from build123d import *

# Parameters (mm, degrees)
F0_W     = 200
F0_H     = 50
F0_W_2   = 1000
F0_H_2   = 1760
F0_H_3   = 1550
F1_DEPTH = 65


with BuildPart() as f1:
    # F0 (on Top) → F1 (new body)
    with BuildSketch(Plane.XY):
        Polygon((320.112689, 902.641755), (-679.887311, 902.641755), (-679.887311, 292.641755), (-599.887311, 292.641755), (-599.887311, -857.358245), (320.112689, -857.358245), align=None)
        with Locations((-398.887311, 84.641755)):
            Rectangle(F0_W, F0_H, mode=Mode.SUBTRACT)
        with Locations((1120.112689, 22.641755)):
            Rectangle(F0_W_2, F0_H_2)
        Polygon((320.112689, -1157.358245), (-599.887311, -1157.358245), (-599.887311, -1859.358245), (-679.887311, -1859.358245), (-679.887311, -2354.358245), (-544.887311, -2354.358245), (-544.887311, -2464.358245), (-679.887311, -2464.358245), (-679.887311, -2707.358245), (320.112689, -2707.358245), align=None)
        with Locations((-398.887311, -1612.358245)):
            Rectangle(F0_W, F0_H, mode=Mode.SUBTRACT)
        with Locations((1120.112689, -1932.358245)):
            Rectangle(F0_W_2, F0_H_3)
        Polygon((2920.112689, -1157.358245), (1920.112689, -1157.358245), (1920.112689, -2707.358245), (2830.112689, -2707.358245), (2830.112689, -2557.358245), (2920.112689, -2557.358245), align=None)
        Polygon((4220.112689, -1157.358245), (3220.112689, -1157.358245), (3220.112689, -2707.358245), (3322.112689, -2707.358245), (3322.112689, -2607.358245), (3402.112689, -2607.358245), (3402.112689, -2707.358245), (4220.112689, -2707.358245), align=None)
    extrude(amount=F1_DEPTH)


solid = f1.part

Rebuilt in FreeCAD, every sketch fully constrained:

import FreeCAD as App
import Part
import Sketcher

V = App.Vector

doc = App.newDocument("Part")
body = doc.addObject("PartDesign::Body", "Body")
body.AllowCompound = True

# Sketch on XY plane
sketch1 = body.newObject("Sketcher::SketchObject", "Sketch")
sketch1.AttachmentSupport = (doc.getObject("XY_Plane"), [""])
sketch1.MapMode = "FlatFace"
sketch1.addGeometry(Part.LineSegment(V(320.112689, 902.641755, 0), V(-679.887311, 902.641755, 0)), False)
sketch1.addGeometry(Part.LineSegment(V(-679.887311, 902.641755, 0), V(-679.887311, 292.641755, 0)), False)
sketch1.addGeometry(Part.LineSegment(V(-679.887311, 292.641755, 0), V(-599.887311, 292.641755, 0)), False)
sketch1.addGeometry(Part.LineSegment(V(-599.887311, 292.641755, 0), V(-599.887311, -857.358245, 0)), False)
sketch1.addGeometry(Part.LineSegment(V(-599.887311, -857.358245, 0), V(320.112689, -857.358245, 0)), False)
sketch1.addGeometry(Part.LineSegment(V(320.112689, -857.358245, 0), V(320.112689, 902.641755, 0)), False)
sketch1.addGeometry(Part.LineSegment(V(-298.887311, 59.641755, 0), V(-498.887311, 59.641755, 0)), False)
sketch1.addGeometry(Part.LineSegment(V(-498.887311, 59.641755, 0), V(-498.887311, 109.641755, 0)), False)
sketch1.addGeometry(Part.LineSegment(V(-498.887311, 109.641755, 0), V(-298.887311, 109.641755, 0)), False)
sketch1.addGeometry(Part.LineSegment(V(-298.887311, 109.641755, 0), V(-298.887311, 59.641755, 0)), False)
sketch1.addGeometry(Part.LineSegment(V(620.112689, 902.641755, 0), V(620.112689, -857.358245, 0)), False)
sketch1.addGeometry(Part.LineSegment(V(620.112689, -857.358245, 0), V(1620.112689, -857.358245, 0)), False)
sketch1.addGeometry(Part.LineSegment(V(1620.112689, -857.358245, 0), V(1620.112689, 902.641755, 0)), False)
sketch1.addGeometry(Part.LineSegment(V(1620.112689, 902.641755, 0), V(620.112689, 902.641755, 0)), False)
sketch1.addGeometry(Part.LineSegment(V(320.112689, -1157.358245, 0), V(-599.887311, -1157.358245, 0)), False)
sketch1.addGeometry(Part.LineSegment(V(-599.887311, -1157.358245, 0), V(-599.887311, -1859.358245, 0)), False)
sketch1.addGeometry(Part.LineSegment(V(-599.887311, -1859.358245, 0), V(-679.887311, -1859.358245, 0)), False)
sketch1.addGeometry(Part.LineSegment(V(-679.887311, -1859.358245, 0), V(-679.887311, -2354.358245, 0)), False)
sketch1.addGeometry(Part.LineSegment(V(-679.887311, -2354.358245, 0), V(-544.887311, -2354.358245, 0)), False)
sketch1.addGeometry(Part.LineSegment(V(-544.887311, -2354.358245, 0), V(-544.887311, -2464.358245, 0)), False)
sketch1.addGeometry(Part.LineSegment(V(-544.887311, -2464.358245, 0), V(-679.887311, -2464.358245, 0)), False)
sketch1.addGeometry(Part.LineSegment(V(-679.887311, -2464.358245, 0), V(-679.887311, -2707.358245, 0)), False)
sketch1.addGeometry(Part.LineSegment(V(-679.887311, -2707.358245, 0), V(320.112689, -2707.358245, 0)), False)
sketch1.addGeometry(Part.LineSegment(V(320.112689, -2707.358245, 0), V(320.112689, -1157.358245, 0)), False)
sketch1.addGeometry(Part.LineSegment(V(-298.887311, -1637.358245, 0), V(-498.887311, -1637.358245, 0)), False)
sketch1.addGeometry(Part.LineSegment(V(-498.887311, -1637.358245, 0), V(-498.887311, -1587.358245, 0)), False)
sketch1.addGeometry(Part.LineSegment(V(-498.887311, -1587.358245, 0), V(-298.887311, -1587.358245, 0)), False)
sketch1.addGeometry(Part.LineSegment(V(-298.887311, -1587.358245, 0), V(-298.887311, -1637.358245, 0)), False)
sketch1.addGeometry(Part.LineSegment(V(620.112689, -1157.358245, 0), V(620.112689, -2707.358245, 0)), False)
sketch1.addGeometry(Part.LineSegment(V(620.112689, -2707.358245, 0), V(1620.112689, -2707.358245, 0)), False)
sketch1.addGeometry(Part.LineSegment(V(1620.112689, -2707.358245, 0), V(1620.112689, -1157.358245, 0)), False)
sketch1.addGeometry(Part.LineSegment(V(1620.112689, -1157.358245, 0), V(620.112689, -1157.358245, 0)), False)
sketch1.addGeometry(Part.LineSegment(V(2920.112689, -1157.358245, 0), V(1920.112689, -1157.358245, 0)), False)
sketch1.addGeometry(Part.LineSegment(V(1920.112689, -1157.358245, 0), V(1920.112689, -2707.358245, 0)), False)
sketch1.addGeometry(Part.LineSegment(V(1920.112689, -2707.358245, 0), V(2830.112689, -2707.358245, 0)), False)
sketch1.addGeometry(Part.LineSegment(V(2830.112689, -2707.358245, 0), V(2830.112689, -2557.358245, 0)), False)
sketch1.addGeometry(Part.LineSegment(V(2830.112689, -2557.358245, 0), V(2920.112689, -2557.358245, 0)), False)
sketch1.addGeometry(Part.LineSegment(V(2920.112689, -2557.358245, 0), V(2920.112689, -1157.358245, 0)), False)
sketch1.addGeometry(Part.LineSegment(V(4220.112689, -1157.358245, 0), V(3220.112689, -1157.358245, 0)), False)
sketch1.addGeometry(Part.LineSegment(V(3220.112689, -1157.358245, 0), V(3220.112689, -2707.358245, 0)), False)
sketch1.addGeometry(Part.LineSegment(V(3220.112689, -2707.358245, 0), V(3322.112689, -2707.358245, 0)), False)
sketch1.addGeometry(Part.LineSegment(V(3322.112689, -2707.358245, 0), V(3322.112689, -2607.358245, 0)), False)
sketch1.addGeometry(Part.LineSegment(V(3322.112689, -2607.358245, 0), V(3402.112689, -2607.358245, 0)), False)
sketch1.addGeometry(Part.LineSegment(V(3402.112689, -2607.358245, 0), V(3402.112689, -2707.358245, 0)), False)
sketch1.addGeometry(Part.LineSegment(V(3402.112689, -2707.358245, 0), V(4220.112689, -2707.358245, 0)), False)
sketch1.addGeometry(Part.LineSegment(V(4220.112689, -2707.358245, 0), V(4220.112689, -1157.358245, 0)), False)
sketch1.addConstraint(Sketcher.Constraint("Coincident", 0, 2, 1, 1))
sketch1.addConstraint(Sketcher.Constraint("Coincident", 1, 2, 2, 1))
sketch1.addConstraint(Sketcher.Constraint("Coincident", 2, 2, 3, 1))
sketch1.addConstraint(Sketcher.Constraint("Coincident", 3, 2, 4, 1))
sketch1.addConstraint(Sketcher.Constraint("Coincident", 4, 2, 5, 1))
sketch1.addConstraint(Sketcher.Constraint("Coincident", 5, 2, 0, 1))
sketch1.addConstraint(Sketcher.Constraint("Coincident", 6, 2, 7, 1))
sketch1.addConstraint(Sketcher.Constraint("Coincident", 7, 2, 8, 1))
sketch1.addConstraint(Sketcher.Constraint("Coincident", 8, 2, 9, 1))
sketch1.addConstraint(Sketcher.Constraint("Coincident", 9, 2, 6, 1))
sketch1.addConstraint(Sketcher.Constraint("Coincident", 10, 2, 11, 1))
sketch1.addConstraint(Sketcher.Constraint("Coincident", 11, 2, 12, 1))
sketch1.addConstraint(Sketcher.Constraint("Coincident", 12, 2, 13, 1))
sketch1.addConstraint(Sketcher.Constraint("Coincident", 13, 2, 10, 1))
sketch1.addConstraint(Sketcher.Constraint("Coincident", 14, 2, 15, 1))
sketch1.addConstraint(Sketcher.Constraint("Coincident", 15, 2, 16, 1))
sketch1.addConstraint(Sketcher.Constraint("Coincident", 16, 2, 17, 1))
sketch1.addConstraint(Sketcher.Constraint("Coincident", 17, 2, 18, 1))
sketch1.addConstraint(Sketcher.Constraint("Coincident", 18, 2, 19, 1))
sketch1.addConstraint(Sketcher.Constraint("Coincident", 19, 2, 20, 1))
sketch1.addConstraint(Sketcher.Constraint("Coincident", 20, 2, 21, 1))
sketch1.addConstraint(Sketcher.Constraint("Coincident", 21, 2, 22, 1))
sketch1.addConstraint(Sketcher.Constraint("Coincident", 22, 2, 23, 1))
sketch1.addConstraint(Sketcher.Constraint("Coincident", 23, 2, 14, 1))
sketch1.addConstraint(Sketcher.Constraint("Coincident", 24, 2, 25, 1))
sketch1.addConstraint(Sketcher.Constraint("Coincident", 25, 2, 26, 1))
sketch1.addConstraint(Sketcher.Constraint("Coincident", 26, 2, 27, 1))
sketch1.addConstraint(Sketcher.Constraint("Coincident", 27, 2, 24, 1))
sketch1.addConstraint(Sketcher.Constraint("Coincident", 28, 2, 29, 1))
sketch1.addConstraint(Sketcher.Constraint("Coincident", 29, 2, 30, 1))
sketch1.addConstraint(Sketcher.Constraint("Coincident", 30, 2, 31, 1))
sketch1.addConstraint(Sketcher.Constraint("Coincident", 31, 2, 28, 1))
sketch1.addConstraint(Sketcher.Constraint("Coincident", 32, 2, 33, 1))
sketch1.addConstraint(Sketcher.Constraint("Coincident", 33, 2, 34, 1))
sketch1.addConstraint(Sketcher.Constraint("Coincident", 34, 2, 35, 1))
sketch1.addConstraint(Sketcher.Constraint("Coincident", 35, 2, 36, 1))
sketch1.addConstraint(Sketcher.Constraint("Coincident", 36, 2, 37, 1))
sketch1.addConstraint(Sketcher.Constraint("Coincident", 37, 2, 32, 1))
sketch1.addConstraint(Sketcher.Constraint("Coincident", 38, 2, 39, 1))
sketch1.addConstraint(Sketcher.Constraint("Coincident", 39, 2, 40, 1))
sketch1.addConstraint(Sketcher.Constraint("Coincident", 40, 2, 41, 1))
sketch1.addConstraint(Sketcher.Constraint("Coincident", 41, 2, 42, 1))
sketch1.addConstraint(Sketcher.Constraint("Coincident", 42, 2, 43, 1))
sketch1.addConstraint(Sketcher.Constraint("Coincident", 43, 2, 44, 1))
sketch1.addConstraint(Sketcher.Constraint("Coincident", 44, 2, 45, 1))
sketch1.addConstraint(Sketcher.Constraint("Coincident", 45, 2, 38, 1))
sketch1.addConstraint(Sketcher.Constraint("Horizontal", 0))
sketch1.addConstraint(Sketcher.Constraint("Vertical", 1))
sketch1.addConstraint(Sketcher.Constraint("Horizontal", 2))
sketch1.addConstraint(Sketcher.Constraint("Vertical", 3))
sketch1.addConstraint(Sketcher.Constraint("Horizontal", 4))
sketch1.addConstraint(Sketcher.Constraint("Vertical", 5))
sketch1.addConstraint(Sketcher.Constraint("Horizontal", 6))
sketch1.addConstraint(Sketcher.Constraint("Vertical", 7))
sketch1.addConstraint(Sketcher.Constraint("Horizontal", 8))
sketch1.addConstraint(Sketcher.Constraint("Vertical", 9))
sketch1.addConstraint(Sketcher.Constraint("Vertical", 10))
sketch1.addConstraint(Sketcher.Constraint("Horizontal", 11))
sketch1.addConstraint(Sketcher.Constraint("Vertical", 12))
sketch1.addConstraint(Sketcher.Constraint("Horizontal", 13))
sketch1.addConstraint(Sketcher.Constraint("Horizontal", 14))
sketch1.addConstraint(Sketcher.Constraint("Vertical", 15))
sketch1.addConstraint(Sketcher.Constraint("Horizontal", 16))
sketch1.addConstraint(Sketcher.Constraint("Vertical", 17))
sketch1.addConstraint(Sketcher.Constraint("Horizontal", 18))
sketch1.addConstraint(Sketcher.Constraint("Vertical", 19))
sketch1.addConstraint(Sketcher.Constraint("Horizontal", 20))
sketch1.addConstraint(Sketcher.Constraint("Vertical", 21))
sketch1.addConstraint(Sketcher.Constraint("Horizontal", 22))
sketch1.addConstraint(Sketcher.Constraint("Vertical", 23))
sketch1.addConstraint(Sketcher.Constraint("Horizontal", 24))
sketch1.addConstraint(Sketcher.Constraint("Vertical", 25))
sketch1.addConstraint(Sketcher.Constraint("Horizontal", 26))
sketch1.addConstraint(Sketcher.Constraint("Vertical", 27))
sketch1.addConstraint(Sketcher.Constraint("Vertical", 28))
sketch1.addConstraint(Sketcher.Constraint("Horizontal", 29))
sketch1.addConstraint(Sketcher.Constraint("Vertical", 30))
sketch1.addConstraint(Sketcher.Constraint("Horizontal", 31))
sketch1.addConstraint(Sketcher.Constraint("Horizontal", 32))
sketch1.addConstraint(Sketcher.Constraint("Vertical", 33))
sketch1.addConstraint(Sketcher.Constraint("Horizontal", 34))
sketch1.addConstraint(Sketcher.Constraint("Vertical", 35))
sketch1.addConstraint(Sketcher.Constraint("Horizontal", 36))
sketch1.addConstraint(Sketcher.Constraint("Vertical", 37))
sketch1.addConstraint(Sketcher.Constraint("Horizontal", 38))
sketch1.addConstraint(Sketcher.Constraint("Vertical", 39))
sketch1.addConstraint(Sketcher.Constraint("Horizontal", 40))
sketch1.addConstraint(Sketcher.Constraint("Vertical", 41))
sketch1.addConstraint(Sketcher.Constraint("Horizontal", 42))
sketch1.addConstraint(Sketcher.Constraint("Vertical", 43))
sketch1.addConstraint(Sketcher.Constraint("Horizontal", 44))
sketch1.addConstraint(Sketcher.Constraint("Vertical", 45))
sketch1.addConstraint(Sketcher.Constraint("Horizontal", 4, 2, 10, 2))
sketch1.addConstraint(Sketcher.Constraint("Horizontal", 5, 2, 12, 2))
sketch1.addConstraint(Sketcher.Constraint("Horizontal", 22, 2, 28, 2))
sketch1.addConstraint(Sketcher.Constraint("Horizontal", 23, 2, 30, 2))
sketch1.addConstraint(Sketcher.Constraint("Horizontal", 31, 2, 32, 2))
sketch1.addConstraint(Sketcher.Constraint("Horizontal", 29, 2, 33, 2))
sketch1.addConstraint(Sketcher.Constraint("Horizontal", 37, 2, 38, 2))
sketch1.addConstraint(Sketcher.Constraint("Horizontal", 34, 2, 39, 2))
sketch1.addConstraint(Sketcher.Constraint("Horizontal", 40, 2, 43, 2))
sketch1.addConstraint(Sketcher.Constraint("Vertical", 3, 2, 14, 2))
sketch1.addConstraint(Sketcher.Constraint("Vertical", 1, 2, 16, 2))
sketch1.addConstraint(Sketcher.Constraint("Vertical", 17, 2, 20, 2))
sketch1.addConstraint(Sketcher.Constraint("Vertical", 5, 2, 22, 2))
sketch1.addConstraint(Sketcher.Constraint("Vertical", 7, 2, 24, 2))
sketch1.addConstraint(Sketcher.Constraint("Vertical", 9, 2, 26, 2))
sketch1.addConstraint(Sketcher.Constraint("Vertical", 13, 2, 28, 2))
sketch1.addConstraint(Sketcher.Constraint("Vertical", 12, 2, 29, 2))
sketch1.addConstraint(Sketcher.Constraint("Equal", 0, 11))
sketch1.addConstraint(Sketcher.Constraint("Equal", 31, 32))
sketch1.addConstraint(Sketcher.Constraint("Equal", 32, 38))
sketch1.addConstraint(Sketcher.Constraint("Equal", 16, 42))
sketch1.addConstraint(Sketcher.Constraint("Equal", 9, 25))
sketch1.addConstraint(Sketcher.Constraint("DistanceX", 0, 2, 0, 1, 1000.0))
sketch1.addConstraint(Sketcher.Constraint("DistanceX", 2, 1, 2, 2, 80.0))
sketch1.addConstraint(Sketcher.Constraint("DistanceX", 6, 2, 6, 1, 200.0))
sketch1.addConstraint(Sketcher.Constraint("DistanceX", 18, 1, 18, 2, 135.0))
sketch1.addConstraint(Sketcher.Constraint("DistanceX", 34, 1, 34, 2, 910.0))
sketch1.addConstraint(Sketcher.Constraint("DistanceX", 40, 1, 40, 2, 102.0))
sketch1.addConstraint(Sketcher.Constraint("DistanceY", 1, 2, 1, 1, 610.0))
sketch1.addConstraint(Sketcher.Constraint("DistanceY", 3, 2, 3, 1, 1150.0))
sketch1.addConstraint(Sketcher.Constraint("DistanceY", 7, 1, 7, 2, 50.0))
sketch1.addConstraint(Sketcher.Constraint("DistanceY", 15, 2, 15, 1, 702.0))
sketch1.addConstraint(Sketcher.Constraint("DistanceY", 17, 2, 17, 1, 495.0))
sketch1.addConstraint(Sketcher.Constraint("DistanceY", 19, 2, 19, 1, 110.0))
sketch1.addConstraint(Sketcher.Constraint("DistanceY", 21, 2, 21, 1, 243.0))
sketch1.addConstraint(Sketcher.Constraint("DistanceY", 35, 1, 35, 2, 150.0))
sketch1.addConstraint(Sketcher.Constraint("DistanceY", 41, 1, 41, 2, 100.0))
sketch1.addConstraint(Sketcher.Constraint("DistanceX", 2, 2, 6, 2, 101.0))
sketch1.addConstraint(Sketcher.Constraint("DistanceY", 6, 2, 2, 2, 233.0))
sketch1.addConstraint(Sketcher.Constraint("DistanceX", 4, 2, 10, 2, 300.0))
sketch1.addConstraint(Sketcher.Constraint("DistanceY", 14, 2, 3, 2, 300.0))
sketch1.addConstraint(Sketcher.Constraint("DistanceY", 15, 2, 24, 2, 222.0))
sketch1.addConstraint(Sketcher.Constraint("DistanceX", 30, 2, 32, 2, 300.0))
sketch1.addConstraint(Sketcher.Constraint("DistanceX", 37, 2, 38, 2, 300.0))
sketch1.addConstraint(Sketcher.Constraint("DistanceX", 0, 2, -1, 1, 679.887311))
sketch1.addConstraint(Sketcher.Constraint("DistanceY", -1, 1, 0, 2, 902.641755))
pad1 = body.newObject("PartDesign::Pad", "Pad")
pad1.Profile = sketch1
pad1.Length = 65

doc.recompute()
